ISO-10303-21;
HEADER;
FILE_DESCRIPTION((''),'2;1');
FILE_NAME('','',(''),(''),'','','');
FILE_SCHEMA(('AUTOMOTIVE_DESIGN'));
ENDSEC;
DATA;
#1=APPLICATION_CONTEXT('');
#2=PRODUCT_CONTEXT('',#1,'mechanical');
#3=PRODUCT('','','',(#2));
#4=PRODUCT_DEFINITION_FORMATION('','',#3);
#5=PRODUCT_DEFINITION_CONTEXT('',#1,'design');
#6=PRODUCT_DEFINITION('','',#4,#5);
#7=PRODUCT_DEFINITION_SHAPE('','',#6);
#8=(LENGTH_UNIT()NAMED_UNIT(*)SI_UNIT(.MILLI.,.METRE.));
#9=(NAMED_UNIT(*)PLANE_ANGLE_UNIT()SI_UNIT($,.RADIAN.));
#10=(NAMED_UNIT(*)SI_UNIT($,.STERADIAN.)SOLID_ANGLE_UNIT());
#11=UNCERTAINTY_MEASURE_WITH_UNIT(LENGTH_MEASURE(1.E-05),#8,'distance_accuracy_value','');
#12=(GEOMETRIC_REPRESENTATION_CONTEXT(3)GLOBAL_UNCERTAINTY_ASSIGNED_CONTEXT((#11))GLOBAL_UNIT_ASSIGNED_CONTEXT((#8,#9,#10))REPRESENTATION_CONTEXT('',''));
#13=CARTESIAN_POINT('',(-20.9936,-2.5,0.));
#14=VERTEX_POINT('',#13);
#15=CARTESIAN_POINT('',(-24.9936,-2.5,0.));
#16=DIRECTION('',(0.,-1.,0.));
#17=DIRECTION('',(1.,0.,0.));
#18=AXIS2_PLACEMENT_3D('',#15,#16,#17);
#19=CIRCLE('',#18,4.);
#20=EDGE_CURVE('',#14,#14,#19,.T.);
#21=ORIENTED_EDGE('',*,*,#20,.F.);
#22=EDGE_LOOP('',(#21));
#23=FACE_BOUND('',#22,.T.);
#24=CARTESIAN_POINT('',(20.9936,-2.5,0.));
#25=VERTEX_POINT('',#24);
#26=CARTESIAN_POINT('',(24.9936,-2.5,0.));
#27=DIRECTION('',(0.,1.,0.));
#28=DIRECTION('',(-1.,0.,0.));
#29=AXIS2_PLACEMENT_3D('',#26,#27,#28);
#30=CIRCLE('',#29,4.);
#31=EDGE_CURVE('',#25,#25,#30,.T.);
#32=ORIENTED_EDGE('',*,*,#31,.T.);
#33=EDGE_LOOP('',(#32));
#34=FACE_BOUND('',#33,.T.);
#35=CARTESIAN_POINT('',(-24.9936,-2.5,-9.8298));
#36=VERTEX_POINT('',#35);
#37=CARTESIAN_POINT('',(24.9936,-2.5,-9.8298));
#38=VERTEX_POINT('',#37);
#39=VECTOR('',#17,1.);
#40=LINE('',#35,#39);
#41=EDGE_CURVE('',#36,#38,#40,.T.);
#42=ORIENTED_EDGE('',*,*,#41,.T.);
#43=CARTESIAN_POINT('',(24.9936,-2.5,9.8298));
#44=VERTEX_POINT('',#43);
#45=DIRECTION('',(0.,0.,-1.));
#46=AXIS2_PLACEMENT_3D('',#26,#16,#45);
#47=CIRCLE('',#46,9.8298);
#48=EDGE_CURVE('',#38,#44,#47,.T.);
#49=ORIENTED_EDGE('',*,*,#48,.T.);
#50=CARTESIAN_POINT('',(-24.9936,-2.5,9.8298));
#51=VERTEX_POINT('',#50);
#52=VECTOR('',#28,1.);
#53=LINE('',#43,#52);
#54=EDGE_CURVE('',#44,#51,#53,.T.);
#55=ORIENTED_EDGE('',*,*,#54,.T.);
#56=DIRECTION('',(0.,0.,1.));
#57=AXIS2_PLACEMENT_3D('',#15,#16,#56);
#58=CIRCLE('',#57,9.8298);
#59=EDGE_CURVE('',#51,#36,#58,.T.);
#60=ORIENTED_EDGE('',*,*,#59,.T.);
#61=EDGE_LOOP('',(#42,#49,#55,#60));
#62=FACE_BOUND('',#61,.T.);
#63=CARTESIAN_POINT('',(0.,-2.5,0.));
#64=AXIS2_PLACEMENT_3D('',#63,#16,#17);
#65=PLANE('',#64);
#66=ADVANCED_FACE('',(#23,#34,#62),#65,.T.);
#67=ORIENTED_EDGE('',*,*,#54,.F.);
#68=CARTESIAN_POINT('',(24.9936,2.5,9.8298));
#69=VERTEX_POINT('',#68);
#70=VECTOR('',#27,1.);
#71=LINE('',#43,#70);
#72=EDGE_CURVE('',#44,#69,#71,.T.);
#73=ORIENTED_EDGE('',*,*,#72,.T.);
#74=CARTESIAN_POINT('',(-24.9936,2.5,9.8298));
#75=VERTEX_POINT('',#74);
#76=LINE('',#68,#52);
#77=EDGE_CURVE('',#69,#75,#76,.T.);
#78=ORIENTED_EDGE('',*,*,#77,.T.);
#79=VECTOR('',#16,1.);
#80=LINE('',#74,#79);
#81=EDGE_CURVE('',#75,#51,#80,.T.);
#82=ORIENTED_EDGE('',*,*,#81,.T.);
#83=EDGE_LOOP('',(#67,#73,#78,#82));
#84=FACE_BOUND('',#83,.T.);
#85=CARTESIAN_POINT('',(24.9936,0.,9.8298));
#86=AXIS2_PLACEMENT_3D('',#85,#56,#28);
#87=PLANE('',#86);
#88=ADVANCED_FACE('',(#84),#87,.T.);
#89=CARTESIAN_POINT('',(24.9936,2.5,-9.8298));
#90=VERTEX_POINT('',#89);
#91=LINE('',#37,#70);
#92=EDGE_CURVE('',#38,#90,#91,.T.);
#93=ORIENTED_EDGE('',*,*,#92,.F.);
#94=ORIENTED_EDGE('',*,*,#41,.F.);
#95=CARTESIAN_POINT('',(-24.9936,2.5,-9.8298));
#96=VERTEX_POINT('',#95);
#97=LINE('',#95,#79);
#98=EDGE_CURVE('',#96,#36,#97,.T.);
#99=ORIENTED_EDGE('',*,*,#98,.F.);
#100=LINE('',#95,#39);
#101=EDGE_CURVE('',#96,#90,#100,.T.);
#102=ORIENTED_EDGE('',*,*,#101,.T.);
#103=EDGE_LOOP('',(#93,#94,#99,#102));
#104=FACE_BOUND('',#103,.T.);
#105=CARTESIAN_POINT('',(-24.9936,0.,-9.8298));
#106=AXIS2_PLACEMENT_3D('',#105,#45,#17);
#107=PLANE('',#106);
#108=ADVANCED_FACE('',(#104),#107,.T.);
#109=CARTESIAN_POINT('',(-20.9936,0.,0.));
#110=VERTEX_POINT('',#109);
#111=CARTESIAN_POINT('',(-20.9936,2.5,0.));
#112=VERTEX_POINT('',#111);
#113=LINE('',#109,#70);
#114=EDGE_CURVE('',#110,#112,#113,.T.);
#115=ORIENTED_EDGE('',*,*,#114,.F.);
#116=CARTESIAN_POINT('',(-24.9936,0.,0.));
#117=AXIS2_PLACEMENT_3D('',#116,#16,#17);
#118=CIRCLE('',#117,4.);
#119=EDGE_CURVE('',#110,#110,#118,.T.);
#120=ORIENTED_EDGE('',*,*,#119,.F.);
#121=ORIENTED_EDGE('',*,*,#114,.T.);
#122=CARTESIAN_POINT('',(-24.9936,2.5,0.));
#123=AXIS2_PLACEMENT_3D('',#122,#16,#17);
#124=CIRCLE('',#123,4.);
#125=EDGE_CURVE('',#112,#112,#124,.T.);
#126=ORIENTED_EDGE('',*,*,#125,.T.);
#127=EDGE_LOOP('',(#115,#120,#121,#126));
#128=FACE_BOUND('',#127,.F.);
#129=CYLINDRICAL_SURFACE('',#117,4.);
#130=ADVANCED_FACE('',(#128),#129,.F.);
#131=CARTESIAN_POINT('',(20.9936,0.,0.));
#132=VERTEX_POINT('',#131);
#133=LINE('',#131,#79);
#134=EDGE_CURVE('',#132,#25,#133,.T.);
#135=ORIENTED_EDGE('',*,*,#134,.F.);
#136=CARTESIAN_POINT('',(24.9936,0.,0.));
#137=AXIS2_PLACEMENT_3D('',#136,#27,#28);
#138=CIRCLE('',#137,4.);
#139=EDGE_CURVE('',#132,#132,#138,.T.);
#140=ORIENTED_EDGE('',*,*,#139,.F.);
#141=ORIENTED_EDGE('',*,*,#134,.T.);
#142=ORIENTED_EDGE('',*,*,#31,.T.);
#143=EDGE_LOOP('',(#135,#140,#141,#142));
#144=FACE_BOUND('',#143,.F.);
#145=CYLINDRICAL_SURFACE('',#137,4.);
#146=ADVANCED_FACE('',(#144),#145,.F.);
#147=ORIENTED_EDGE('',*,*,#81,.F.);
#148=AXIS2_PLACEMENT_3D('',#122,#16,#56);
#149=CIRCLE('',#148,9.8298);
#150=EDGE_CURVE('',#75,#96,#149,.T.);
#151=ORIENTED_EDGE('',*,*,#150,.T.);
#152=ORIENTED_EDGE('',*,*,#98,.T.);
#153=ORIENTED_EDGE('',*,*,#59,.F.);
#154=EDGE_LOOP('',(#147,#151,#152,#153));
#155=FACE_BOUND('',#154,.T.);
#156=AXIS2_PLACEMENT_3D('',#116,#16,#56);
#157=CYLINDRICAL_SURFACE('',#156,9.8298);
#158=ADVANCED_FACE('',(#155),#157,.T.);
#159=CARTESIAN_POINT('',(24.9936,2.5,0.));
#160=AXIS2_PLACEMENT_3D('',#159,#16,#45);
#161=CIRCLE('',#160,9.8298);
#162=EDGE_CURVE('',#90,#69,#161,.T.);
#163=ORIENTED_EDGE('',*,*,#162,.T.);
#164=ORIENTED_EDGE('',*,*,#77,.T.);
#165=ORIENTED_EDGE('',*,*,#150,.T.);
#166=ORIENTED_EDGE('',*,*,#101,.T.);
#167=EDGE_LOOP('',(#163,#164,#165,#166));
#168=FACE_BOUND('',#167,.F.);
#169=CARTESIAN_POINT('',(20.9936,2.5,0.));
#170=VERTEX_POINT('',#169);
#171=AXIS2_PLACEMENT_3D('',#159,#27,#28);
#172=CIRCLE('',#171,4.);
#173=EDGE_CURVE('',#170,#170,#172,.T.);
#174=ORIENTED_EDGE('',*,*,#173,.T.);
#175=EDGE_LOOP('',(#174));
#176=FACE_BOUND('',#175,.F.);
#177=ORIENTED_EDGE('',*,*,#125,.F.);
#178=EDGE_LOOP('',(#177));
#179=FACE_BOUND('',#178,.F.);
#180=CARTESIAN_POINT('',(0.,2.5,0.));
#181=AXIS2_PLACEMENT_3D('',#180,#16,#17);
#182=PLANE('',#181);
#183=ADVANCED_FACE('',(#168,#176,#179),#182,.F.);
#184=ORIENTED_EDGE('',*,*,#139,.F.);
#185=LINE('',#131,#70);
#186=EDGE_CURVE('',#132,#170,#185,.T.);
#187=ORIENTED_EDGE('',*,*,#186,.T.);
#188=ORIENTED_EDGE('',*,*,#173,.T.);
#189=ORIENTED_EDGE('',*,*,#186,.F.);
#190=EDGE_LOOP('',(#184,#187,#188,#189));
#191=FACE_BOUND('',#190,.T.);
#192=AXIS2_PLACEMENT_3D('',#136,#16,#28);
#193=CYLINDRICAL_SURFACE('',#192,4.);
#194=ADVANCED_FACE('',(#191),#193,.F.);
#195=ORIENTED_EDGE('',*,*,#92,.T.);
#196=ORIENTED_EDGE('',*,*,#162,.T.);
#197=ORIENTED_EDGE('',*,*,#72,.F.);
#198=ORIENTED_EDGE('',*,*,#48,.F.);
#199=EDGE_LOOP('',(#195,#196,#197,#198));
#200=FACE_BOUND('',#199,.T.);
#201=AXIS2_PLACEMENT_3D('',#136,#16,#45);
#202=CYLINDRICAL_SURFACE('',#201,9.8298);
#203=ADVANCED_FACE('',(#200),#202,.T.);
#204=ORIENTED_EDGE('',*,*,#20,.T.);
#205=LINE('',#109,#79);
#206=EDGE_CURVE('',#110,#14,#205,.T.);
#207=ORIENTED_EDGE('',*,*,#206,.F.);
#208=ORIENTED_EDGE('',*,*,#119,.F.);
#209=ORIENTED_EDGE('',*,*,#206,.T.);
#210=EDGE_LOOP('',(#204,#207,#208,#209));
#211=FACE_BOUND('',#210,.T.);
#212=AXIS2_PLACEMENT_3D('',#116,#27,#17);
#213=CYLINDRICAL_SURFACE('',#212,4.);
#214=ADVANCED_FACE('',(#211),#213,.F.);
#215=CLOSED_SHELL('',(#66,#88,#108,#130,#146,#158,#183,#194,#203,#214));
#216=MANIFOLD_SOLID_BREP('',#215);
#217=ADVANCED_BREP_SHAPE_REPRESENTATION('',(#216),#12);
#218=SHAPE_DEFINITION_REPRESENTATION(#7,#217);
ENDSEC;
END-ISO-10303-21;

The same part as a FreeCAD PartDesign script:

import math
import FreeCAD as App
import Part
import Sketcher
from FreeCAD import Vector

doc = App.newDocument("Part")
body = doc.addObject("PartDesign::Body", "Body")

# Sketch on XZ plane
sketch1 = body.newObject("Sketcher::SketchObject", "Sketch")
sketch1.AttachmentSupport = (doc.getObject("XZ_Plane"), [""])
sketch1.MapMode = "FlatFace"
sketch1.addGeometry([
    Part.LineSegment(Vector(24.9936, 9.8298, 0), Vector(-24.9936, 9.8298, 0)),  # 0
    Part.ArcOfCircle(Part.Circle(Vector(-24.9936, 0, 0), Vector(0, 0, 1), 9.8298), math.radians(90), math.radians(270)),  # 1
    Part.LineSegment(Vector(-24.9936, -9.8298, 0), Vector(24.9936, -9.8298, 0)),  # 2
    Part.ArcOfCircle(Part.Circle(Vector(24.9936, 0, 0), Vector(0, 0, 1), 9.8298), math.radians(-90), math.radians(90)),  # 3
    Part.Circle(Vector(-24.9936, 0, 0), Vector(0, 0, 1), 4),  # 4
    Part.Circle(Vector(24.9936, 0, 0), Vector(0, 0, 1), 4),  # 5
], False)
sketch1.addConstraint([
    Sketcher.Constraint("Tangent", 0, 2, 1, 1),
    Sketcher.Constraint("Tangent", 1, 2, 2, 1),
    Sketcher.Constraint("Tangent", 2, 2, 3, 1),
    Sketcher.Constraint("Tangent", 3, 2, 0, 1),
    Sketcher.Constraint("Horizontal", 0),
    Sketcher.Constraint("Horizontal", 2),
    Sketcher.Constraint("Coincident", 4, 3, 1, 3),
    Sketcher.Constraint("Coincident", 5, 3, 3, 3),
    Sketcher.Constraint("Equal", 4, 5),
    Sketcher.Constraint("Symmetric", 1, 3, 3, 3, -1, 1),
    Sketcher.Constraint("Diameter", 4, 8.0),
    Sketcher.Constraint("Radius", 1, 9.8298),
    Sketcher.Constraint("DistanceX", 0, 2, 0, 1, 49.9872),
])
pad1 = body.newObject("PartDesign::Pad", "Pad")
pad1.Profile = sketch1
pad1.Length = 5
pad1.Midplane = True

doc.recompute()
